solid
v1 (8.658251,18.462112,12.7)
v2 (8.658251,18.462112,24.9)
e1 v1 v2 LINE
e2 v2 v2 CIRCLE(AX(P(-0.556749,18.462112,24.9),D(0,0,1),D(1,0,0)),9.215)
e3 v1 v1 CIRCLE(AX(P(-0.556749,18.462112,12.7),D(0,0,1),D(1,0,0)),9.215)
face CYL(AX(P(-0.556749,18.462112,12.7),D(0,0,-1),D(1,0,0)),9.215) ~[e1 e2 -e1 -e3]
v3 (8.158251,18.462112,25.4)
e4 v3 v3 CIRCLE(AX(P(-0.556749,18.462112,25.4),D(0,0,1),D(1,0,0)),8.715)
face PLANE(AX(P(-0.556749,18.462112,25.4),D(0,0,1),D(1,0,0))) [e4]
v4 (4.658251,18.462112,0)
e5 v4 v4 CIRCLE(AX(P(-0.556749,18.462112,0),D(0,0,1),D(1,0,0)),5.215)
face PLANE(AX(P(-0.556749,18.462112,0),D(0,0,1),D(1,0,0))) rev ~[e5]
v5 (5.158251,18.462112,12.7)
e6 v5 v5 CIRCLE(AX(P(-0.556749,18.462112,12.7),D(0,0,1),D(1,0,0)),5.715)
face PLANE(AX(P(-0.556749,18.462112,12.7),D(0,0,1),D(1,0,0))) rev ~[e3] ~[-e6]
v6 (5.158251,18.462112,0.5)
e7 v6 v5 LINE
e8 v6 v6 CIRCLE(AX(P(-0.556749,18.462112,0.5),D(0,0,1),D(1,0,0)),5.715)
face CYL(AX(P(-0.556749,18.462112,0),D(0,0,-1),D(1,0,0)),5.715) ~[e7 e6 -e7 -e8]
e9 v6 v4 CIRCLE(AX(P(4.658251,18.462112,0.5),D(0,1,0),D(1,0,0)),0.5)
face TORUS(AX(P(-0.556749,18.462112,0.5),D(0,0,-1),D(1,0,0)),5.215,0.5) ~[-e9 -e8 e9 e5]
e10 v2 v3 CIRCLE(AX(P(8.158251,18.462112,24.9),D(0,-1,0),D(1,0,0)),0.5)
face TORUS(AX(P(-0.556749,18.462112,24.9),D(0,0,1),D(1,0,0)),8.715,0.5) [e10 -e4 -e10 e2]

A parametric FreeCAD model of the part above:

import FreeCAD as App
import Part
import Sketcher

V = App.Vector
Q = App.Units.Quantity


def edges_at(feature, points):
    """Names of the edges that pass closest to the given points."""
    edges = feature.Shape.Edges
    near = lambda p: min(range(len(edges)), key=lambda i: edges[i].distToShape(Part.Vertex(*p))[0])
    return sorted({f"Edge{near(p) + 1}" for p in points})

doc = App.newDocument("Part")
params = doc.addObject("Spreadsheet::Sheet", "Params")
for row, (alias, value) in enumerate([
    ("sketch1_diameter", "0.45 in"),
    ("pad1_length", "0.5 in"),
    ("pad2_length", "0.5 in"),
    ("fillet_radius", "0.5 mm"),
    ("fillet2_radius", "0.5 mm"),
], start=1):
    params.set(f"A{row}", alias)
    params.set(f"B{row}", "=" + value)
    params.setAlias(f"B{row}", alias)

body = doc.addObject("PartDesign::Body", "Body")

# Sketch on XY plane
sketch1 = body.newObject("Sketcher::SketchObject", "Sketch")
sketch1.AttachmentSupport = (doc.getObject("XY_Plane"), [""])
sketch1.MapMode = "FlatFace"
sketch1.addGeometry(Part.Circle(V(-0.556749, 18.462112, 0), V(0, 0, 1), 5.715), False)
sketch1.addConstraint(Sketcher.Constraint("Diameter", 0, Q("0.45 in")))
sketch1.addConstraint(Sketcher.Constraint("DistanceX", 0, 3, -1, 1, Q("0.556749 mm")))
sketch1.addConstraint(Sketcher.Constraint("DistanceY", -1, 1, 0, 3, Q("18.462112 mm")))
sketch1.setExpression("Constraints[0]", "Params.sketch1_diameter")
pad1 = body.newObject("PartDesign::Pad", "Pad")
pad1.Profile = sketch1
pad1.setExpression("Length", "Params.pad1_length")

# Sketch on XY plane
sketch2 = body.newObject("Sketcher::SketchObject", "Sketch001")
sketch2.AttachmentSupport = (doc.getObject("XY_Plane"), [""])
sketch2.MapMode = "FlatFace"
sketch2.AttachmentOffset = App.Placement(V(0, 0, 0.5 * 25.4), App.Rotation())
sketch2.addGeometry(Part.Circle(V(-0.556749, 18.462112, 0), V(0, 0, 1), 9.215), False)
sketch2.addConstraint(Sketcher.Constraint("Diameter", 0, Q("18.43 mm")))
sketch2.addConstraint(Sketcher.Constraint("DistanceX", 0, 3, -1, 1, Q("0.556749 mm")))
sketch2.addConstraint(Sketcher.Constraint("DistanceY", -1, 1, 0, 3, Q("18.462112 mm")))
pad2 = body.newObject("PartDesign::Pad", "Pad001")
pad2.Profile = sketch2
pad2.setExpression("Length", "Params.pad2_length")
doc.recompute()

fillet = body.newObject("PartDesign::Fillet", "Fillet")
fillet.Base = (pad2, edges_at(pad2, [(-9.772, 18.462, 25.4)]))
fillet.setExpression("Radius", "Params.fillet_radius")
doc.recompute()

fillet2 = body.newObject("PartDesign::Fillet", "Fillet001")
fillet2.Base = (fillet, edges_at(fillet, [(-6.272, 18.462, 0)]))
fillet2.setExpression("Radius", "Params.fillet2_radius")

doc.recompute()
